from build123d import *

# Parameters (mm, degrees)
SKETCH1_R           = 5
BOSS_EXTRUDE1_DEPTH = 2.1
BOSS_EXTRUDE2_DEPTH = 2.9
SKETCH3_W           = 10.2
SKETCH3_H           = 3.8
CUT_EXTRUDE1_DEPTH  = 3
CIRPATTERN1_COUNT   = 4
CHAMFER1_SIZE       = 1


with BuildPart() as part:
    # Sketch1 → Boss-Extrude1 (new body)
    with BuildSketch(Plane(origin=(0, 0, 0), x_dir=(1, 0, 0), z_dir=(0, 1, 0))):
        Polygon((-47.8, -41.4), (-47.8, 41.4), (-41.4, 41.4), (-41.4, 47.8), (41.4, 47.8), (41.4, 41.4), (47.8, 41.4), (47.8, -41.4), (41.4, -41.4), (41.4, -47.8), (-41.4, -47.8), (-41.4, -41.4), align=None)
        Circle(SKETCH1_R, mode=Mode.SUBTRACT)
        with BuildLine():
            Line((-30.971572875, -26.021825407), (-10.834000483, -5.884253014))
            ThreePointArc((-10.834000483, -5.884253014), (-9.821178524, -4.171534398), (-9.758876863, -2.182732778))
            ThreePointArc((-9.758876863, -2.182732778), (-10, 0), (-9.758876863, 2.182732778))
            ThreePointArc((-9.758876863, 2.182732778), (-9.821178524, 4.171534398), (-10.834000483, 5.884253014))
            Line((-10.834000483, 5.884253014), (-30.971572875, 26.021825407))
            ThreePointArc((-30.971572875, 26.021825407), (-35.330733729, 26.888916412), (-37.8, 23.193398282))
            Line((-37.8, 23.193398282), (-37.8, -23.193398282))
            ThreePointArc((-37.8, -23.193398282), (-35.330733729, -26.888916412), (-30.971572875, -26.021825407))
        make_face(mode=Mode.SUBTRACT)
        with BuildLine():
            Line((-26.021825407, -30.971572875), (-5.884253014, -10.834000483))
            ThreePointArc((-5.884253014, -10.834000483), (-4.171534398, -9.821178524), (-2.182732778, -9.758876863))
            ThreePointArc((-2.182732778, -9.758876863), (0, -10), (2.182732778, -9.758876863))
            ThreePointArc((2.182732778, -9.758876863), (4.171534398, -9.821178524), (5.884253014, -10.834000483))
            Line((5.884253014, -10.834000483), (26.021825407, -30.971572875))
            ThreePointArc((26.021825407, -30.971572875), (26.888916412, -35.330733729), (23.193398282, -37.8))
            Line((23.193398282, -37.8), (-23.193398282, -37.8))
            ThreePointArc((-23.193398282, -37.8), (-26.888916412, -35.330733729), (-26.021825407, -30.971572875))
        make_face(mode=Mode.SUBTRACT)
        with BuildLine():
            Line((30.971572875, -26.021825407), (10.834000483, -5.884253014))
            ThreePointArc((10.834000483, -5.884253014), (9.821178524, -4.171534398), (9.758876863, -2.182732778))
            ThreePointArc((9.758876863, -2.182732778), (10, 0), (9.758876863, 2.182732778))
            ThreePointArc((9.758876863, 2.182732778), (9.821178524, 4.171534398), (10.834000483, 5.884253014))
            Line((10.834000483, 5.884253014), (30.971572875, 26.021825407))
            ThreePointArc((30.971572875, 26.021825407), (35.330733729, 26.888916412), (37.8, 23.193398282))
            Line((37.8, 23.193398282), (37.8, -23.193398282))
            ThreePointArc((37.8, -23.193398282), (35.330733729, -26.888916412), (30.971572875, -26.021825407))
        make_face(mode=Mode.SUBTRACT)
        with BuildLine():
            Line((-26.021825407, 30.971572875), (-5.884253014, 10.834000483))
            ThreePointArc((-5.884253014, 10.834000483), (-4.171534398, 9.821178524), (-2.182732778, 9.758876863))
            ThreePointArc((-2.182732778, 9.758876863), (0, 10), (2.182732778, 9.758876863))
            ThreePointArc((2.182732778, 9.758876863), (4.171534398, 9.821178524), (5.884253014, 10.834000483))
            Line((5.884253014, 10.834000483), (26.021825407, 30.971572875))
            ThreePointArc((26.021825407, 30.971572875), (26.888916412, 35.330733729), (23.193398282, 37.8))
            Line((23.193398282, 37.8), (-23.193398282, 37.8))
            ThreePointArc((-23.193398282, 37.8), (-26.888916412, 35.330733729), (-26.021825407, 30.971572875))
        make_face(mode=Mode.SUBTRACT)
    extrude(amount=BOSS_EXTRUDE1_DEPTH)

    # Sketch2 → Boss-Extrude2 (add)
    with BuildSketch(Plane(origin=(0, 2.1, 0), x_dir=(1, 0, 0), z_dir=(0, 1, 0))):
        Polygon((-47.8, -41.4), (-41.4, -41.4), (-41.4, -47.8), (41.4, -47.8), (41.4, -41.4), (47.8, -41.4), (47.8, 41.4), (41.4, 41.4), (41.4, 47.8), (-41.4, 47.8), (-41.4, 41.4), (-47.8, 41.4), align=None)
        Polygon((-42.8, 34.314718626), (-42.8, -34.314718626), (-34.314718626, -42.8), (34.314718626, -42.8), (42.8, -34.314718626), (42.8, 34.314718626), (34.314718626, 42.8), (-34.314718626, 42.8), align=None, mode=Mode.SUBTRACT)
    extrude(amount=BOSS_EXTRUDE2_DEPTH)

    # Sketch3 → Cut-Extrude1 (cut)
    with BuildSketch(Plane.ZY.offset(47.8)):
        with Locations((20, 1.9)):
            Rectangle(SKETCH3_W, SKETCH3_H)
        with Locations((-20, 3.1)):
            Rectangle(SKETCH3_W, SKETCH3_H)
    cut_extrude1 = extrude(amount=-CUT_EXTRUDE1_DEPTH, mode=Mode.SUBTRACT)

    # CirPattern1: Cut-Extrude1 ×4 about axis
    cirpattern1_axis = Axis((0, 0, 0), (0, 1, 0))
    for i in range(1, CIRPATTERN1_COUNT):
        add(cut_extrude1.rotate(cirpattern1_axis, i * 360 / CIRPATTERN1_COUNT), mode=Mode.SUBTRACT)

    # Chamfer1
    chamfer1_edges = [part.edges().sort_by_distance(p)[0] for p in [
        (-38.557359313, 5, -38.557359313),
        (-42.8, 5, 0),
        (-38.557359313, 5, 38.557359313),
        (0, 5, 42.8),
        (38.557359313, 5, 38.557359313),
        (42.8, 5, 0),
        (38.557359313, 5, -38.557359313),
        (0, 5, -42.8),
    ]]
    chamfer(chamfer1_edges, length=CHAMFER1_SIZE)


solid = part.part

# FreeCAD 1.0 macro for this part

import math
import FreeCAD as App
import Part
import Sketcher

V = App.Vector


def edges_at(feature, points):
    """Names of the edges that pass closest to the given points."""
    edges = feature.Shape.Edges
    near = lambda p: min(range(len(edges)), key=lambda i: edges[i].distToShape(Part.Vertex(*p))[0])
    return sorted({f"Edge{near(p) + 1}" for p in points})


def add_polygon(sketch, points):
    """Adds a closed chain of lines whose ends are joined by coincident constraints."""
    first, n = sketch.GeometryCount, len(points)
    for a, b in zip(points, points[1:] + points[:1]):
        sketch.addGeometry(Part.LineSegment(App.Vector(*a, 0), App.Vector(*b, 0)), False)
    for i in range(n):
        sketch.addConstraint(Sketcher.Constraint("Coincident", first + i, 2, first + (i + 1) % n, 1))

doc = App.newDocument("Part")
body = doc.addObject("PartDesign::Body", "Body")

# Sketch on XZ plane
sketch1 = body.newObject("Sketcher::SketchObject", "Sketch")
sketch1.AttachmentSupport = (doc.getObject("XZ_Plane"), [""])
sketch1.MapMode = "FlatFace"
add_polygon(sketch1, [(-47.8, -41.4), (-47.8, 41.4), (-41.4, 41.4), (-41.4, 47.8), (41.4, 47.8), (41.4, 41.4), (47.8, 41.4), (47.8, -41.4), (41.4, -41.4), (41.4, -47.8), (-41.4, -47.8), (-41.4, -41.4)])  # lines 0-11
sketch1.addGeometry(Part.LineSegment(V(-26, 31, 0), V(-5.9, 10.8, 0)), False)  # 12
sketch1.addGeometry(Part.ArcOfCircle(Part.Circle(V(-3.1, 13.7, 0), V(0, 0, 1), 4), math.radians(-135), math.radians(-77)), False)  # 13
sketch1.addGeometry(Part.ArcOfCircle(Part.Circle(V(0, 0, 0), V(0, 0, 1), 10), math.radians(77), math.radians(103)), False)  # 14
sketch1.addGeometry(Part.ArcOfCircle(Part.Circle(V(3.1, 13.7, 0), V(0, 0, 1), 4), math.radians(-103), math.radians(-45)), False)  # 15
sketch1.addGeometry(Part.LineSegment(V(5.9, 10.8, 0), V(26, 31, 0)), False)  # 16
sketch1.addGeometry(Part.ArcOfCircle(Part.Circle(V(23.2, 33.8, 0), V(0, 0, 1), 4), math.radians(-45), math.radians(90)), False)  # 17
sketch1.addGeometry(Part.LineSegment(V(23.2, 37.8, 0), V(-23.2, 37.8, 0)), False)  # 18
sketch1.addGeometry(Part.ArcOfCircle(Part.Circle(V(-23.2, 33.8, 0), V(0, 0, 1), 4), math.radians(90), math.radians(225)), False)  # 19
sketch1.addGeometry(Part.LineSegment(V(31, 26, 0), V(10.8, 5.9, 0)), False)  # 20
sketch1.addGeometry(Part.ArcOfCircle(Part.Circle(V(13.7, 3.1, 0), V(0, 0, 1), 4), math.radians(135), math.radians(193)), False)  # 21
sketch1.addGeometry(Part.ArcOfCircle(Part.Circle(V(0, 0, 0), V(0, 0, 1), 10), math.radians(-13), math.radians(13)), False)  # 22
sketch1.addGeometry(Part.ArcOfCircle(Part.Circle(V(13.7, -3.1, 0), V(0, 0, 1), 4), math.radians(167), math.radians(225)), False)  # 23
sketch1.addGeometry(Part.LineSegment(V(10.8, -5.9, 0), V(31, -26, 0)), False)  # 24
sketch1.addGeometry(Part.ArcOfCircle(Part.Circle(V(33.8, -23.2, 0), V(0, 0, 1), 4), math.radians(-135), math.radians(0)), False)  # 25
sketch1.addGeometry(Part.LineSegment(V(37.8, -23.2, 0), V(37.8, 23.2, 0)), False)  # 26
sketch1.addGeometry(Part.ArcOfCircle(Part.Circle(V(33.8, 23.2, 0), V(0, 0, 1), 4), math.radians(0), math.radians(135)), False)  # 27
sketch1.addGeometry(Part.Circle(V(0, 0, 0), V(0, 0, 1), 5), False)  # 28
sketch1.addGeometry(Part.ArcOfCircle(Part.Circle(V(-33.8, 23.2, 0), V(0, 0, 1), 4), math.radians(45), math.radians(180)), False)  # 29
sketch1.addGeometry(Part.LineSegment(V(-37.8, 23.2, 0), V(-37.8, -23.2, 0)), False)  # 30
sketch1.addGeometry(Part.ArcOfCircle(Part.Circle(V(-33.8, -23.2, 0), V(0, 0, 1), 4), math.radians(-180), math.radians(-45)), False)  # 31
sketch1.addGeometry(Part.LineSegment(V(-31, -26, 0), V(-10.8, -5.9, 0)), False)  # 32
sketch1.addGeometry(Part.ArcOfCircle(Part.Circle(V(-13.7, -3.1, 0), V(0, 0, 1), 4), math.radians(-45), math.radians(13)), False)  # 33
sketch1.addGeometry(Part.ArcOfCircle(Part.Circle(V(0, 0, 0), V(0, 0, 1), 10), math.radians(167), math.radians(193)), False)  # 34
sketch1.addGeometry(Part.ArcOfCircle(Part.Circle(V(-13.7, 3.1, 0), V(0, 0, 1), 4), math.radians(-13), math.radians(45)), False)  # 35
sketch1.addGeometry(Part.LineSegment(V(-10.8, 5.9, 0), V(-31, 26, 0)), False)  # 36
sketch1.addGeometry(Part.ArcOfCircle(Part.Circle(V(-23.2, -33.8, 0), V(0, 0, 1), 4), math.radians(135), math.radians(270)), False)  # 37
sketch1.addGeometry(Part.LineSegment(V(-23.2, -37.8, 0), V(23.2, -37.8, 0)), False)  # 38
sketch1.addGeometry(Part.ArcOfCircle(Part.Circle(V(23.2, -33.8, 0), V(0, 0, 1), 4), math.radians(-90), math.radians(45)), False)  # 39
sketch1.addGeometry(Part.LineSegment(V(26, -31, 0), V(5.9, -10.8, 0)), False)  # 40
sketch1.addGeometry(Part.ArcOfCircle(Part.Circle(V(3.1, -13.7, 0), V(0, 0, 1), 4), math.radians(45), math.radians(103)), False)  # 41
sketch1.addGeometry(Part.ArcOfCircle(Part.Circle(V(0, 0, 0), V(0, 0, 1), 10), math.radians(-103), math.radians(-77)), False)  # 42
sketch1.addGeometry(Part.ArcOfCircle(Part.Circle(V(-3.1, -13.7, 0), V(0, 0, 1), 4), math.radians(77), math.radians(135)), False)  # 43
sketch1.addGeometry(Part.LineSegment(V(-5.9, -10.8, 0), V(-26, -31, 0)), False)  # 44
sketch1.addConstraint([
    Sketcher.Constraint("Tangent", 12, 2, 13, 1),
    Sketcher.Constraint("Tangent", 13, 2, 14, 2),
    Sketcher.Constraint("Tangent", 14, 1, 15, 1),
    Sketcher.Constraint("Tangent", 15, 2, 16, 1),
    Sketcher.Constraint("Tangent", 16, 2, 17, 1),
    Sketcher.Constraint("Tangent", 17, 2, 18, 1),
    Sketcher.Constraint("Tangent", 18, 2, 19, 1),
    Sketcher.Constraint("Tangent", 19, 2, 12, 1),
    Sketcher.Constraint("Tangent", 20, 2, 21, 1),
    Sketcher.Constraint("Tangent", 21, 2, 22, 2),
    Sketcher.Constraint("Tangent", 22, 1, 23, 1),
    Sketcher.Constraint("Tangent", 23, 2, 24, 1),
    Sketcher.Constraint("Tangent", 24, 2, 25, 1),
    Sketcher.Constraint("Tangent", 25, 2, 26, 1),
    Sketcher.Constraint("Tangent", 26, 2, 27, 1),
    Sketcher.Constraint("Tangent", 27, 2, 20, 1),
    Sketcher.Constraint("Tangent", 29, 2, 30, 1),
    Sketcher.Constraint("Tangent", 30, 2, 31, 1),
    Sketcher.Constraint("Tangent", 31, 2, 32, 1),
    Sketcher.Constraint("Tangent", 32, 2, 33, 1),
    Sketcher.Constraint("Tangent", 33, 2, 34, 2),
    Sketcher.Constraint("Tangent", 34, 1, 35, 1),
    Sketcher.Constraint("Tangent", 35, 2, 36, 1),
    Sketcher.Constraint("Tangent", 36, 2, 29, 1),
    Sketcher.Constraint("Tangent", 37, 2, 38, 1),
    Sketcher.Constraint("Tangent", 38, 2, 39, 1),
    Sketcher.Constraint("Tangent", 39, 2, 40, 1),
    Sketcher.Constraint("Tangent", 40, 2, 41, 1),
    Sketcher.Constraint("Tangent", 41, 2, 42, 2),
    Sketcher.Constraint("Tangent", 42, 1, 43, 1),
    Sketcher.Constraint("Tangent", 43, 2, 44, 1),
    Sketcher.Constraint("Tangent", 44, 2, 37, 1),
    Sketcher.Constraint("Vertical", 0),
    Sketcher.Constraint("Horizontal", 1),
    Sketcher.Constraint("Vertical", 2),
    Sketcher.Constraint("Horizontal", 3),
    Sketcher.Constraint("Vertical", 4),
    Sketcher.Constraint("Horizontal", 5),
    Sketcher.Constraint("Vertical", 6),
    Sketcher.Constraint("Horizontal", 7),
    Sketcher.Constraint("Vertical", 8),
    Sketcher.Constraint("Horizontal", 9),
    Sketcher.Constraint("Vertical", 10),
    Sketcher.Constraint("Horizontal", 11),
    Sketcher.Constraint("Horizontal", 18),
    Sketcher.Constraint("Vertical", 26),
    Sketcher.Constraint("Vertical", 30),
    Sketcher.Constraint("Horizontal", 38),
    Sketcher.Constraint("Coincident", 14, 3, -1, 1),
    Sketcher.Constraint("Coincident", 22, 3, -1, 1),
    Sketcher.Constraint("Coincident", 28, 3, -1, 1),
    Sketcher.Constraint("Coincident", 34, 3, -1, 1),
    Sketcher.Constraint("Coincident", 42, 3, -1, 1),
    Sketcher.Constraint("Equal", 13, 15),
    Sketcher.Constraint("Equal", 15, 17),
    Sketcher.Constraint("Equal", 17, 19),
    Sketcher.Constraint("Equal", 19, 21),
    Sketcher.Constraint("Equal", 14, 22),
    Sketcher.Constraint("Equal", 21, 23),
    Sketcher.Constraint("Equal", 23, 25),
    Sketcher.Constraint("Equal", 25, 27),
    Sketcher.Constraint("Equal", 27, 29),
    Sketcher.Constraint("Equal", 29, 31),
    Sketcher.Constraint("Equal", 31, 33),
    Sketcher.Constraint("Equal", 22, 34),
    Sketcher.Constraint("Equal", 33, 35),
    Sketcher.Constraint("Equal", 35, 37),
    Sketcher.Constraint("Equal", 37, 39),
    Sketcher.Constraint("Equal", 39, 41),
    Sketcher.Constraint("Equal", 34, 42),
    Sketcher.Constraint("Equal", 41, 43),
    Sketcher.Constraint("Symmetric", 25, 3, 29, 3, -1, 1),
    Sketcher.Constraint("Symmetric", 17, 3, 37, 3, -1, 1),
    Sketcher.Constraint("Symmetric", 0, 2, 6, 2, -1, 1),
    Sketcher.Constraint("Symmetric", 2, 2, 8, 2, -1, 1),
    Sketcher.Constraint("Symmetric", 4, 2, 10, 2, -1, 1),
    Sketcher.Constraint("Symmetric", 27, 2, 31, 2, -1, 1),
    Sketcher.Constraint("Symmetric", 19, 2, 39, 2, -1, 1),
    Sketcher.Constraint("Symmetric", 1, 2, 4, 2, -2),
    Sketcher.Constraint("Symmetric", 12, 2, 15, 2, -2),
    Sketcher.Constraint("Symmetric", 24, 2, 31, 2, -2),
    Sketcher.Constraint("Perpendicular", 12, 16),
    Sketcher.Constraint("Parallel", 16, 20),
    Sketcher.Constraint("Perpendicular", 32, 36),
    Sketcher.Constraint("Perpendicular", 40, 44),
    Sketcher.Constraint("Equal", 9, 0),
    Sketcher.Constraint("Equal", 11, 2),
    Sketcher.Constraint("Equal", 38, 26),
    Sketcher.Constraint("Equal", 16, 20),
    Sketcher.Constraint("Diameter", 28, 10.0),
    Sketcher.Constraint("Radius", 13, 4.0),
    Sketcher.Constraint("Radius", 14, 10.0),
    Sketcher.Constraint("DistanceX", 1, 1, 1, 2, 6.4),
    Sketcher.Constraint("DistanceX", 3, 1, 3, 2, 82.8),
    Sketcher.Constraint("DistanceY", -1, 1, 17, 3, 33.8),
    Sketcher.Constraint("DistanceY", -1, 1, 12, 2, 10.834),
])
pad1 = body.newObject("PartDesign::Pad", "Pad")
pad1.Profile = sketch1
pad1.Length = 2.1
pad1.Reversed = True

# Sketch on XZ plane
sketch2 = body.newObject("Sketcher::SketchObject", "Sketch001")
sketch2.AttachmentSupport = (doc.getObject("XZ_Plane"), [""])
sketch2.MapMode = "FlatFace"
sketch2.AttachmentOffset = App.Placement(V(0, 0, -2.1), App.Rotation())
add_polygon(sketch2, [(-48, 41), (-41, 41), (-41, 48), (41, 48), (41, 41), (48, 41), (48, -41), (41, -41), (41, -48), (-41, -48), (-41, -41), (-48, -41)])  # lines 0-11
add_polygon(sketch2, [(-43, 34), (-43, -34), (-34, -43), (34, -43), (43, -34), (43, 34), (34, 43), (-34, 43)])  # lines 12-19
sketch2.addConstraint([
    Sketcher.Constraint("Horizontal", 0),
    Sketcher.Constraint("Vertical", 1),
    Sketcher.Constraint("Horizontal", 2),
    Sketcher.Constraint("Vertical", 3),
    Sketcher.Constraint("Horizontal", 4),
    Sketcher.Constraint("Vertical", 5),
    Sketcher.Constraint("Horizontal", 6),
    Sketcher.Constraint("Vertical", 7),
    Sketcher.Constraint("Horizontal", 8),
    Sketcher.Constraint("Vertical", 9),
    Sketcher.Constraint("Horizontal", 10),
    Sketcher.Constraint("Vertical", 11),
    Sketcher.Constraint("Vertical", 12),
    Sketcher.Constraint("Horizontal", 14),
    Sketcher.Constraint("Vertical", 16),
    Sketcher.Constraint("Horizontal", 18),
    Sketcher.Constraint("Symmetric", 0, 2, 6, 2, -1, 1),
    Sketcher.Constraint("Symmetric", 2, 2, 8, 2, -1, 1),
    Sketcher.Constraint("Symmetric", 4, 2, 10, 2, -1, 1),
    Sketcher.Constraint("Symmetric", 12, 2, 16, 2, -1, 1),
    Sketcher.Constraint("Symmetric", 13, 2, 17, 2, -1, 1),
    Sketcher.Constraint("Symmetric", 0, 2, 3, 2, -2),
    Sketcher.Constraint("Perpendicular", 13, 15),
    Sketcher.Constraint("Perpendicular", 17, 19),
    Sketcher.Constraint("Horizontal", 12, 2, 15, 2),
    Sketcher.Constraint("Horizontal", 16, 2, 19, 2),
    Sketcher.Constraint("Vertical", 14, 2, 17, 2),
    Sketcher.Constraint("Equal", 10, 1),
    Sketcher.Constraint("Equal", 8, 5),
    Sketcher.Constraint("Equal", 18, 12),
    Sketcher.Constraint("Distance", 13, 12.0),
    Sketcher.Constraint("DistanceX", 0, 1, 0, 2, 6.4),
    Sketcher.Constraint("DistanceX", 2, 1, 2, 2, 82.8),
    Sketcher.Constraint("DistanceX", 10, 2, 12, 2, 5.0),
])
pad2 = body.newObject("PartDesign::Pad", "Pad001")
pad2.Profile = sketch2
pad2.Length = 2.9
pad2.Reversed = True

# Sketch on YZ plane
sketch3 = body.newObject("Sketcher::SketchObject", "Sketch002")
sketch3.AttachmentSupport = (doc.getObject("YZ_Plane"), [""])
sketch3.MapMode = "FlatFace"
sketch3.AttachmentOffset = App.Placement(V(0, 0, -47.8), App.Rotation())
add_polygon(sketch3, [(3.8, 14.9), (0, 14.9), (0, 25.1), (3.8, 25.1)])  # lines 0-3
add_polygon(sketch3, [(5, -25.1), (1.2, -25.1), (1.2, -14.9), (5, -14.9)])  # lines 4-7
sketch3.addConstraint([
    Sketcher.Constraint("Horizontal", 0),
    Sketcher.Constraint("Vertical", 1),
    Sketcher.Constraint("Horizontal", 2),
    Sketcher.Constraint("Vertical", 3),
    Sketcher.Constraint("Horizontal", 4),
    Sketcher.Constraint("Vertical", 5),
    Sketcher.Constraint("Horizontal", 6),
    Sketcher.Constraint("Vertical", 7),
    Sketcher.Constraint("PointOnObject", 0, 2, -2),
    Sketcher.Constraint("Equal", 2, 4),
    Sketcher.Constraint("Equal", 3, 5),
    Sketcher.Constraint("DistanceX", 0, 2, 0, 1, 3.8),
    Sketcher.Constraint("DistanceY", 1, 1, 1, 2, 10.2),
    Sketcher.Constraint("DistanceX", -1, 1, 6, 2, 5.0),
    Sketcher.Constraint("DistanceY", 4, 2, 0, 2, 40.0),
    Sketcher.Constraint("DistanceY", -1, 1, 0, 2, 14.9),
])
pocket1 = body.newObject("PartDesign::Pocket", "Pocket")
pocket1.Profile = sketch3
pocket1.Length = 3
pocket1.Reversed = True
doc.recompute()

polarpattern = body.newObject("PartDesign::PolarPattern", "PolarPattern")
polarpattern.Originals = [pocket1]
polarpattern.Axis = (doc.getObject("Y_Axis"), [""])
polarpattern.Angle = 360
polarpattern.Occurrences = 4
body.Tip = polarpattern
doc.recompute()

chamfer = body.newObject("PartDesign::Chamfer", "Chamfer")
chamfer.Base = (polarpattern, edges_at(polarpattern, [
    (-38.557, 5, -38.557),
    (-42.8, 5, 0),
    (-38.557, 5, 38.557),
    (0, 5, 42.8),
    (38.557, 5, 38.557),
    (42.8, 5, 0),
    (38.557, 5, -38.557),
    (0, 5, -42.8),
]))
chamfer.Size = 1

doc.recompute()
